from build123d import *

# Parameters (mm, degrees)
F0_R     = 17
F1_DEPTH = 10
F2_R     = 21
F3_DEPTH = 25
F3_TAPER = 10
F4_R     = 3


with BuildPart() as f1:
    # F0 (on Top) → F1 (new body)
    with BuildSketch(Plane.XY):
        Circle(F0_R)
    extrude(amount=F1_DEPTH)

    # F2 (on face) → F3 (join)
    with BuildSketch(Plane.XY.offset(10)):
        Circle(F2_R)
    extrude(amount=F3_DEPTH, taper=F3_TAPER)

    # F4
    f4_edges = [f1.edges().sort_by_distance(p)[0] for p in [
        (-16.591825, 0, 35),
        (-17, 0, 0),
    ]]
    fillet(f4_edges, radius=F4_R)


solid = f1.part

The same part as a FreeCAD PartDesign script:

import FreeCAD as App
import Part
import Sketcher
from FreeCAD import Vector


def edges_at(feature, points):
    """Names of the edges that pass closest to the given points."""
    edges = feature.Shape.Edges
    near = lambda p: min(range(len(edges)), key=lambda i: edges[i].distToShape(Part.Vertex(*p))[0])
    return sorted({f"Edge{near(p) + 1}" for p in points})

doc = App.newDocument("Part")
params = doc.addObject("Spreadsheet::Sheet", "Params")
for row, (alias, value) in enumerate([
    ("sketch1_diameter", "34 mm"),
    ("pad1_length", "10 mm"),
    ("sketch2_diameter", "42 mm"),
    ("pad2_length", "25 mm"),
    ("pad2_taper", "-10 deg"),
    ("fillet_radius", "3 mm"),
], start=1):
    params.set(f"A{row}", alias)
    params.set(f"B{row}", "=" + value)
    params.setAlias(f"B{row}", alias)

body = doc.addObject("PartDesign::Body", "Body")

# Sketch on XY plane
sketch1 = body.newObject("Sketcher::SketchObject", "Sketch")
sketch1.AttachmentSupport = (doc.getObject("XY_Plane"), [""])
sketch1.MapMode = "FlatFace"
sketch1.addGeometry(Part.Circle(Vector(0, 0, 0), Vector(0, 0, 1), 17), False)
sketch1.addConstraint([
    Sketcher.Constraint("Coincident", 0, 3, -1, 1),
    Sketcher.Constraint("Diameter", 0, 34.0),
])
sketch1.setExpression("Constraints[1]", "Params.sketch1_diameter")
pad1 = body.newObject("PartDesign::Pad", "Pad")
pad1.Profile = sketch1
pad1.setExpression("Length", "Params.pad1_length")

# Sketch on XY plane
sketch2 = body.newObject("Sketcher::SketchObject", "Sketch001")
sketch2.AttachmentSupport = (doc.getObject("XY_Plane"), [""])
sketch2.MapMode = "FlatFace"
sketch2.AttachmentOffset = App.Placement(Vector(0, 0, 10), App.Rotation())
sketch2.addGeometry(Part.Circle(Vector(0, 0, 0), Vector(0, 0, 1), 21), False)
sketch2.addConstraint([
    Sketcher.Constraint("Coincident", 0, 3, -1, 1),
    Sketcher.Constraint("Diameter", 0, 42.0),
])
sketch2.setExpression("Constraints[1]", "Params.sketch2_diameter")
pad2 = body.newObject("PartDesign::Pad", "Pad001")
pad2.Profile = sketch2
pad2.setExpression("Length", "Params.pad2_length")
pad2.setExpression("TaperAngle", "Params.pad2_taper")
doc.recompute()

fillet = body.newObject("PartDesign::Fillet", "Fillet")
fillet.Base = (pad2, edges_at(pad2, [(-16.592, 0, 35), (-17, 0, 0)]))
fillet.setExpression("Radius", "Params.fillet_radius")

doc.recompute()
